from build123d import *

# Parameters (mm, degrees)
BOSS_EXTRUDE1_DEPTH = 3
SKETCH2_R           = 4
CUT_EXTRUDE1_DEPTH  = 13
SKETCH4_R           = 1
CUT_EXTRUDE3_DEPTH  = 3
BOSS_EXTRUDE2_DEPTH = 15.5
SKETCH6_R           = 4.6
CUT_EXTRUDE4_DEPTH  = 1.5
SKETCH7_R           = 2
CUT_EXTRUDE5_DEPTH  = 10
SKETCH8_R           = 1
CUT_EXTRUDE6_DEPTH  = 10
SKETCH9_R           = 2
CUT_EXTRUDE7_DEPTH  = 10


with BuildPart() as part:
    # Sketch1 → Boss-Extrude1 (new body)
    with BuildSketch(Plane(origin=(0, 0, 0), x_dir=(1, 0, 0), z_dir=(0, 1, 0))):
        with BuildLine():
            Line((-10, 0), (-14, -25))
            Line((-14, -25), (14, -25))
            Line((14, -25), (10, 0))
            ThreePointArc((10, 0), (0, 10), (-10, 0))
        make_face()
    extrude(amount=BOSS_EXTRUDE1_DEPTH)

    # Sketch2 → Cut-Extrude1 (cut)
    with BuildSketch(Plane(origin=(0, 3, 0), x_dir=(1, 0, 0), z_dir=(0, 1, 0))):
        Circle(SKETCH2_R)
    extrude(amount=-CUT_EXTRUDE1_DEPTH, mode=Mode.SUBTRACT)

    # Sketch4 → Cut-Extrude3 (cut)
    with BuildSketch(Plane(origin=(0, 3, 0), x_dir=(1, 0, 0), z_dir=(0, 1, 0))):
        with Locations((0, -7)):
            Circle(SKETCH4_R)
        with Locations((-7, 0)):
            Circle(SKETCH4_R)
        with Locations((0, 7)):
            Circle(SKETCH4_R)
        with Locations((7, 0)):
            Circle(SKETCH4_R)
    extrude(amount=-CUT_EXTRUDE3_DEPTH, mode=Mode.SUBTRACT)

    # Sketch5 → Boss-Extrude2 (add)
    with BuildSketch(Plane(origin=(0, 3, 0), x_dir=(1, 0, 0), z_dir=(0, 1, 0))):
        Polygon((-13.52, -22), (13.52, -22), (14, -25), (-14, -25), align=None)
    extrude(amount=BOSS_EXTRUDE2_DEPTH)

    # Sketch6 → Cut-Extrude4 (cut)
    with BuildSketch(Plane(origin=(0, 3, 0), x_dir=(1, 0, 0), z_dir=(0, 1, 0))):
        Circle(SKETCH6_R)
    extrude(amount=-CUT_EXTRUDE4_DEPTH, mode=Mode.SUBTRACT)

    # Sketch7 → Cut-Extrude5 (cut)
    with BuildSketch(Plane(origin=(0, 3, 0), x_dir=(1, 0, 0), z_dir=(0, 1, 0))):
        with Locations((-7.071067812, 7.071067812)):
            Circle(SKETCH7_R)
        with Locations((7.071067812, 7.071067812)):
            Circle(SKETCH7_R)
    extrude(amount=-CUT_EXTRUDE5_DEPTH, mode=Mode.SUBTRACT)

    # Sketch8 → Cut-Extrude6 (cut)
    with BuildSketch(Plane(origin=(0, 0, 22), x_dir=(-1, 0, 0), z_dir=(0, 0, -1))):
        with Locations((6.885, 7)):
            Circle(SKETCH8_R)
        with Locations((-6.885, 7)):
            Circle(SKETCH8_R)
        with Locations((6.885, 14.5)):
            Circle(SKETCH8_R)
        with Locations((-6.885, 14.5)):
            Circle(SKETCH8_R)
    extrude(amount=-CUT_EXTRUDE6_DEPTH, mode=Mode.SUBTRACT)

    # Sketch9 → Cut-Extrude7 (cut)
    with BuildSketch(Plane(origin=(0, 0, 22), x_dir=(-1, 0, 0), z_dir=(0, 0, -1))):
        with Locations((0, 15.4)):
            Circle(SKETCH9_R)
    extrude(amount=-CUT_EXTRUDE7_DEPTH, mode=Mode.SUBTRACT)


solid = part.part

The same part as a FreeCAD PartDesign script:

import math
import FreeCAD as App
import Part
import Sketcher
from FreeCAD import Vector


def add_polygon(sketch, points):
    """Adds a closed chain of lines whose ends are joined by coincident constraints."""
    first, n = sketch.GeometryCount, len(points)
    for a, b in zip(points, points[1:] + points[:1]):
        sketch.addGeometry(Part.LineSegment(App.Vector(*a, 0), App.Vector(*b, 0)), False)
    for i in range(n):
        sketch.addConstraint(Sketcher.Constraint("Coincident", first + i, 2, first + (i + 1) % n, 1))

doc = App.newDocument("Part")
body = doc.addObject("PartDesign::Body", "Body")

# Sketch on XZ plane
sketch1 = body.newObject("Sketcher::SketchObject", "Sketch")
sketch1.AttachmentSupport = (doc.getObject("XZ_Plane"), [""])
sketch1.MapMode = "FlatFace"
sketch1.addGeometry([
    Part.LineSegment(Vector(-10, 0, 0), Vector(-14, 25, 0)),
    Part.LineSegment(Vector(-14, 25, 0), Vector(14, 25, 0)),
    Part.LineSegment(Vector(14, 25, 0), Vector(10, 0, 0)),
    Part.ArcOfCircle(Part.Circle(Vector(0, 0, 0), Vector(0, 0, 1), 10), math.radians(180), math.radians(360)),
], False)
sketch1.addConstraint([
    Sketcher.Constraint("Coincident", 0, 2, 1, 1),
    Sketcher.Constraint("Coincident", 1, 2, 2, 1),
    Sketcher.Constraint("Coincident", 2, 2, 3, 2),
    Sketcher.Constraint("Coincident", 3, 1, 0, 1),
    Sketcher.Constraint("Horizontal", 1),
    Sketcher.Constraint("Coincident", 3, 3, -1, 1),
    Sketcher.Constraint("PointOnObject", 2, 2, -1),
    Sketcher.Constraint("PointOnObject", 3, 1, -1),
    Sketcher.Constraint("Equal", 0, 2),
    Sketcher.Constraint("Radius", 3, 10.0),
    Sketcher.Constraint("DistanceX", 1, 1, 1, 2, 28.0),
    Sketcher.Constraint("DistanceY", -1, 1, 0, 2, 25.0),
])
pad1 = body.newObject("PartDesign::Pad", "Pad")
pad1.Profile = sketch1
pad1.Length = 3
pad1.Reversed = True

# Sketch on XZ plane
sketch2 = body.newObject("Sketcher::SketchObject", "Sketch001")
sketch2.AttachmentSupport = (doc.getObject("XZ_Plane"), [""])
sketch2.MapMode = "FlatFace"
sketch2.AttachmentOffset = App.Placement(Vector(0, 0, -3), App.Rotation())
sketch2.addGeometry(Part.Circle(Vector(0, 0, 0), Vector(0, 0, 1), 4), False)
sketch2.addConstraint([
    Sketcher.Constraint("Coincident", 0, 3, -1, 1),
    Sketcher.Constraint("Diameter", 0, 8.0),
])
pocket1 = body.newObject("PartDesign::Pocket", "Pocket")
pocket1.Profile = sketch2
pocket1.Length = 13
pocket1.Reversed = True

# Sketch on XZ plane
sketch3 = body.newObject("Sketcher::SketchObject", "Sketch002")
sketch3.AttachmentSupport = (doc.getObject("XZ_Plane"), [""])
sketch3.MapMode = "FlatFace"
sketch3.AttachmentOffset = App.Placement(Vector(0, 0, -3), App.Rotation())
sketch3.addGeometry([
    Part.Circle(Vector(0, 7, 0), Vector(0, 0, 1), 1),
    Part.Circle(Vector(-7, 0, 0), Vector(0, 0, 1), 1),
    Part.Circle(Vector(0, -7, 0), Vector(0, 0, 1), 1),
    Part.Circle(Vector(7, 0, 0), Vector(0, 0, 1), 1),
], False)
sketch3.addConstraint([
    Sketcher.Constraint("Equal", 0, 1),
    Sketcher.Constraint("Equal", 1, 2),
    Sketcher.Constraint("Equal", 2, 3),
    Sketcher.Constraint("Symmetric", 0, 3, 2, 3, -1, 1),
    Sketcher.Constraint("Symmetric", 1, 3, 3, 3, -1, 1),
    Sketcher.Constraint("PointOnObject", 0, 3, -2),
    Sketcher.Constraint("PointOnObject", 1, 3, -1),
    Sketcher.Constraint("Diameter", 0, 2.0),
    Sketcher.Constraint("DistanceY", -1, 1, 0, 3, 7.0),
    Sketcher.Constraint("DistanceX", 1, 3, -1, 1, 7.0),
])
pocket2 = body.newObject("PartDesign::Pocket", "Pocket001")
pocket2.Profile = sketch3
pocket2.Length = 3
pocket2.Reversed = True

# Sketch on XZ plane
sketch4 = body.newObject("Sketcher::SketchObject", "Sketch003")
sketch4.AttachmentSupport = (doc.getObject("XZ_Plane"), [""])
sketch4.MapMode = "FlatFace"
sketch4.AttachmentOffset = App.Placement(Vector(0, 0, -3), App.Rotation())
add_polygon(sketch4, [(13.5, 22), (-13.5, 22), (-14, 25), (14, 25)])  # lines 0-3
sketch4.addConstraint([
    Sketcher.Constraint("Horizontal", 0),
    Sketcher.Constraint("Horizontal", 2),
    Sketcher.Constraint("Equal", 1, 3),
    Sketcher.Constraint("DistanceX", 2, 1, 2, 2, 28.0),
    Sketcher.Constraint("DistanceY", -1, 1, 0, 2, 22.0),
    Sketcher.Constraint("DistanceX", 1, 2, -1, 1, 14.0),
    Sketcher.Constraint("DistanceY", -1, 1, 1, 2, 25.0),
    Sketcher.Constraint("DistanceX", 0, 2, 0, 1, 27.04),
])
pad2 = body.newObject("PartDesign::Pad", "Pad001")
pad2.Profile = sketch4
pad2.Length = 15.5
pad2.Reversed = True

# Sketch on XZ plane
sketch5 = body.newObject("Sketcher::SketchObject", "Sketch004")
sketch5.AttachmentSupport = (doc.getObject("XZ_Plane"), [""])
sketch5.MapMode = "FlatFace"
sketch5.AttachmentOffset = App.Placement(Vector(0, 0, -3), App.Rotation())
sketch5.addGeometry(Part.Circle(Vector(0, 0, 0), Vector(0, 0, 1), 4.6), False)
sketch5.addConstraint([
    Sketcher.Constraint("Coincident", 0, 3, -1, 1),
    Sketcher.Constraint("Diameter", 0, 9.2),
])
pocket3 = body.newObject("PartDesign::Pocket", "Pocket002")
pocket3.Profile = sketch5
pocket3.Length = 1.5
pocket3.Reversed = True

# Sketch on XZ plane
sketch6 = body.newObject("Sketcher::SketchObject", "Sketch005")
sketch6.AttachmentSupport = (doc.getObject("XZ_Plane"), [""])
sketch6.MapMode = "FlatFace"
sketch6.AttachmentOffset = App.Placement(Vector(0, 0, -3), App.Rotation())
sketch6.addGeometry([
    Part.Circle(Vector(-7.1, -7.1, 0), Vector(0, 0, 1), 2),
    Part.Circle(Vector(7.1, -7.1, 0), Vector(0, 0, 1), 2),
], False)
sketch6.addConstraint([
    Sketcher.Constraint("Equal", 0, 1),
    Sketcher.Constraint("Symmetric", 0, 3, 1, 3, -2),
    Sketcher.Constraint("Diameter", 0, 4.0),
    Sketcher.Constraint("DistanceX", 0, 3, -1, 1, 7.071068),
    Sketcher.Constraint("DistanceY", 0, 3, -1, 1, 7.071068),
])
pocket4 = body.newObject("PartDesign::Pocket", "Pocket003")
pocket4.Profile = sketch6
pocket4.Length = 10
pocket4.Reversed = True

# Sketch on XY plane
sketch7 = body.newObject("Sketcher::SketchObject", "Sketch006")
sketch7.AttachmentSupport = (doc.getObject("XY_Plane"), [""])
sketch7.MapMode = "FlatFace"
sketch7.AttachmentOffset = App.Placement(Vector(0, 0, 22), App.Rotation())
sketch7.addGeometry([
    Part.Circle(Vector(-6.9, 7, 0), Vector(0, 0, 1), 1),
    Part.Circle(Vector(6.9, 7, 0), Vector(0, 0, 1), 1),
    Part.Circle(Vector(-6.9, 14.5, 0), Vector(0, 0, 1), 1),
    Part.Circle(Vector(6.9, 14.5, 0), Vector(0, 0, 1), 1),
], False)
sketch7.addConstraint([
    Sketcher.Constraint("Equal", 0, 1),
    Sketcher.Constraint("Equal", 1, 2),
    Sketcher.Constraint("Equal", 2, 3),
    Sketcher.Constraint("Symmetric", 0, 3, 1, 3, -2),
    Sketcher.Constraint("Symmetric", 2, 3, 3, 3, -2),
    Sketcher.Constraint("Vertical", 0, 3, 2, 3),
    Sketcher.Constraint("Diameter", 0, 2.0),
    Sketcher.Constraint("DistanceY", -1, 1, 0, 3, 7.0),
    Sketcher.Constraint("DistanceY", -1, 1, 2, 3, 14.5),
    Sketcher.Constraint("DistanceX", 0, 3, 1, 3, 13.77),
])
pocket5 = body.newObject("PartDesign::Pocket", "Pocket004")
pocket5.Profile = sketch7
pocket5.Length = 10
pocket5.Reversed = True

# Sketch on XY plane
sketch8 = body.newObject("Sketcher::SketchObject", "Sketch007")
sketch8.AttachmentSupport = (doc.getObject("XY_Plane"), [""])
sketch8.MapMode = "FlatFace"
sketch8.AttachmentOffset = App.Placement(Vector(0, 0, 22), App.Rotation())
sketch8.addGeometry(Part.Circle(Vector(0, 15.4, 0), Vector(0, 0, 1), 2), False)
sketch8.addConstraint([
    Sketcher.Constraint("PointOnObject", 0, 3, -2),
    Sketcher.Constraint("Diameter", 0, 4.0),
    Sketcher.Constraint("DistanceY", -1, 1, 0, 3, 15.4),
])
pocket6 = body.newObject("PartDesign::Pocket", "Pocket005")
pocket6.Profile = sketch8
pocket6.Length = 10
pocket6.Reversed = True

doc.recompute()
